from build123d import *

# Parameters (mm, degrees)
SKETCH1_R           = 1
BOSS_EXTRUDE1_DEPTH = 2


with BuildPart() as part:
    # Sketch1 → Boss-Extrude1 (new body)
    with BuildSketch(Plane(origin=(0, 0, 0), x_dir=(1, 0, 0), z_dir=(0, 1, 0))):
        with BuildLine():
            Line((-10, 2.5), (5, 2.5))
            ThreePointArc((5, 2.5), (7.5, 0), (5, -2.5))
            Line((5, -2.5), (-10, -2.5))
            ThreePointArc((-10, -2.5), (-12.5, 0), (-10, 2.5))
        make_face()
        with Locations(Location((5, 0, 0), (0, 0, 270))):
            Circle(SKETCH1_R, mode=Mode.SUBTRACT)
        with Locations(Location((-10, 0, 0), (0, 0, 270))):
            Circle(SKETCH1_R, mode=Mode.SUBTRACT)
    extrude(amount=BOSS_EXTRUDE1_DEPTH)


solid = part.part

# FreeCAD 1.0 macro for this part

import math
import FreeCAD as App
import Part
import Sketcher
from FreeCAD import Vector

doc = App.newDocument("Part")
body = doc.addObject("PartDesign::Body", "Body")

sketch1 = body.newObject("Sketcher::SketchObject", "Sketch")
sketch1.AttachmentSupport = (doc.getObject("XZ_Plane"), [""])
sketch1.MapMode = "FlatFace"
sketch1.addGeometry(Part.LineSegment(Vector(5, -2.5, 0), Vector(-10, -2.5, 0)), False)
sketch1.addGeometry(Part.ArcOfCircle(Part.Circle(Vector(-10, 0, 0), Vector(0, 0, 1), 2.5), math.radians(90), math.radians(270)), False)
sketch1.addGeometry(Part.LineSegment(Vector(-10, 2.5, 0), Vector(5, 2.5, 0)), False)
sketch1.addGeometry(Part.ArcOfCircle(Part.Circle(Vector(5, 0, 0), Vector(0, 0, 1), 2.5), math.radians(-90), math.radians(90)), False)
sketch1.addGeometry(Part.Circle(Vector(5, 0, 0), Vector(0, 0, 1), 1), False)
sketch1.addGeometry(Part.Circle(Vector(-10, 0, 0), Vector(0, 0, 1), 1), False)
sketch1.addConstraint(Sketcher.Constraint("Tangent", 0, 2, 1, 2))
sketch1.addConstraint(Sketcher.Constraint("Tangent", 1, 1, 2, 1))
sketch1.addConstraint(Sketcher.Constraint("Tangent", 2, 2, 3, 2))
sketch1.addConstraint(Sketcher.Constraint("Tangent", 3, 1, 0, 1))
sketch1.addConstraint(Sketcher.Constraint("Horizontal", 0))
sketch1.addConstraint(Sketcher.Constraint("Horizontal", 2))
sketch1.addConstraint(Sketcher.Constraint("Coincident", 4, 3, 3, 3))
sketch1.addConstraint(Sketcher.Constraint("Coincident", 5, 3, 1, 3))
sketch1.addConstraint(Sketcher.Constraint("Equal", 4, 5))
sketch1.addConstraint(Sketcher.Constraint("PointOnObject", 1, 3, -1))
sketch1.addConstraint(Sketcher.Constraint("Diameter", 4, 2.0))
sketch1.addConstraint(Sketcher.Constraint("Radius", 1, 2.5))
sketch1.addConstraint(Sketcher.Constraint("DistanceX", 0, 2, 0, 1, 15.0))
sketch1.addConstraint(Sketcher.Constraint("DistanceX", 1, 3, -1, 1, 10.0))
pad1 = body.newObject("PartDesign::Pad", "Pad")
pad1.Profile = sketch1
pad1.Length = 2
pad1.Reversed = True

doc.recompute()
